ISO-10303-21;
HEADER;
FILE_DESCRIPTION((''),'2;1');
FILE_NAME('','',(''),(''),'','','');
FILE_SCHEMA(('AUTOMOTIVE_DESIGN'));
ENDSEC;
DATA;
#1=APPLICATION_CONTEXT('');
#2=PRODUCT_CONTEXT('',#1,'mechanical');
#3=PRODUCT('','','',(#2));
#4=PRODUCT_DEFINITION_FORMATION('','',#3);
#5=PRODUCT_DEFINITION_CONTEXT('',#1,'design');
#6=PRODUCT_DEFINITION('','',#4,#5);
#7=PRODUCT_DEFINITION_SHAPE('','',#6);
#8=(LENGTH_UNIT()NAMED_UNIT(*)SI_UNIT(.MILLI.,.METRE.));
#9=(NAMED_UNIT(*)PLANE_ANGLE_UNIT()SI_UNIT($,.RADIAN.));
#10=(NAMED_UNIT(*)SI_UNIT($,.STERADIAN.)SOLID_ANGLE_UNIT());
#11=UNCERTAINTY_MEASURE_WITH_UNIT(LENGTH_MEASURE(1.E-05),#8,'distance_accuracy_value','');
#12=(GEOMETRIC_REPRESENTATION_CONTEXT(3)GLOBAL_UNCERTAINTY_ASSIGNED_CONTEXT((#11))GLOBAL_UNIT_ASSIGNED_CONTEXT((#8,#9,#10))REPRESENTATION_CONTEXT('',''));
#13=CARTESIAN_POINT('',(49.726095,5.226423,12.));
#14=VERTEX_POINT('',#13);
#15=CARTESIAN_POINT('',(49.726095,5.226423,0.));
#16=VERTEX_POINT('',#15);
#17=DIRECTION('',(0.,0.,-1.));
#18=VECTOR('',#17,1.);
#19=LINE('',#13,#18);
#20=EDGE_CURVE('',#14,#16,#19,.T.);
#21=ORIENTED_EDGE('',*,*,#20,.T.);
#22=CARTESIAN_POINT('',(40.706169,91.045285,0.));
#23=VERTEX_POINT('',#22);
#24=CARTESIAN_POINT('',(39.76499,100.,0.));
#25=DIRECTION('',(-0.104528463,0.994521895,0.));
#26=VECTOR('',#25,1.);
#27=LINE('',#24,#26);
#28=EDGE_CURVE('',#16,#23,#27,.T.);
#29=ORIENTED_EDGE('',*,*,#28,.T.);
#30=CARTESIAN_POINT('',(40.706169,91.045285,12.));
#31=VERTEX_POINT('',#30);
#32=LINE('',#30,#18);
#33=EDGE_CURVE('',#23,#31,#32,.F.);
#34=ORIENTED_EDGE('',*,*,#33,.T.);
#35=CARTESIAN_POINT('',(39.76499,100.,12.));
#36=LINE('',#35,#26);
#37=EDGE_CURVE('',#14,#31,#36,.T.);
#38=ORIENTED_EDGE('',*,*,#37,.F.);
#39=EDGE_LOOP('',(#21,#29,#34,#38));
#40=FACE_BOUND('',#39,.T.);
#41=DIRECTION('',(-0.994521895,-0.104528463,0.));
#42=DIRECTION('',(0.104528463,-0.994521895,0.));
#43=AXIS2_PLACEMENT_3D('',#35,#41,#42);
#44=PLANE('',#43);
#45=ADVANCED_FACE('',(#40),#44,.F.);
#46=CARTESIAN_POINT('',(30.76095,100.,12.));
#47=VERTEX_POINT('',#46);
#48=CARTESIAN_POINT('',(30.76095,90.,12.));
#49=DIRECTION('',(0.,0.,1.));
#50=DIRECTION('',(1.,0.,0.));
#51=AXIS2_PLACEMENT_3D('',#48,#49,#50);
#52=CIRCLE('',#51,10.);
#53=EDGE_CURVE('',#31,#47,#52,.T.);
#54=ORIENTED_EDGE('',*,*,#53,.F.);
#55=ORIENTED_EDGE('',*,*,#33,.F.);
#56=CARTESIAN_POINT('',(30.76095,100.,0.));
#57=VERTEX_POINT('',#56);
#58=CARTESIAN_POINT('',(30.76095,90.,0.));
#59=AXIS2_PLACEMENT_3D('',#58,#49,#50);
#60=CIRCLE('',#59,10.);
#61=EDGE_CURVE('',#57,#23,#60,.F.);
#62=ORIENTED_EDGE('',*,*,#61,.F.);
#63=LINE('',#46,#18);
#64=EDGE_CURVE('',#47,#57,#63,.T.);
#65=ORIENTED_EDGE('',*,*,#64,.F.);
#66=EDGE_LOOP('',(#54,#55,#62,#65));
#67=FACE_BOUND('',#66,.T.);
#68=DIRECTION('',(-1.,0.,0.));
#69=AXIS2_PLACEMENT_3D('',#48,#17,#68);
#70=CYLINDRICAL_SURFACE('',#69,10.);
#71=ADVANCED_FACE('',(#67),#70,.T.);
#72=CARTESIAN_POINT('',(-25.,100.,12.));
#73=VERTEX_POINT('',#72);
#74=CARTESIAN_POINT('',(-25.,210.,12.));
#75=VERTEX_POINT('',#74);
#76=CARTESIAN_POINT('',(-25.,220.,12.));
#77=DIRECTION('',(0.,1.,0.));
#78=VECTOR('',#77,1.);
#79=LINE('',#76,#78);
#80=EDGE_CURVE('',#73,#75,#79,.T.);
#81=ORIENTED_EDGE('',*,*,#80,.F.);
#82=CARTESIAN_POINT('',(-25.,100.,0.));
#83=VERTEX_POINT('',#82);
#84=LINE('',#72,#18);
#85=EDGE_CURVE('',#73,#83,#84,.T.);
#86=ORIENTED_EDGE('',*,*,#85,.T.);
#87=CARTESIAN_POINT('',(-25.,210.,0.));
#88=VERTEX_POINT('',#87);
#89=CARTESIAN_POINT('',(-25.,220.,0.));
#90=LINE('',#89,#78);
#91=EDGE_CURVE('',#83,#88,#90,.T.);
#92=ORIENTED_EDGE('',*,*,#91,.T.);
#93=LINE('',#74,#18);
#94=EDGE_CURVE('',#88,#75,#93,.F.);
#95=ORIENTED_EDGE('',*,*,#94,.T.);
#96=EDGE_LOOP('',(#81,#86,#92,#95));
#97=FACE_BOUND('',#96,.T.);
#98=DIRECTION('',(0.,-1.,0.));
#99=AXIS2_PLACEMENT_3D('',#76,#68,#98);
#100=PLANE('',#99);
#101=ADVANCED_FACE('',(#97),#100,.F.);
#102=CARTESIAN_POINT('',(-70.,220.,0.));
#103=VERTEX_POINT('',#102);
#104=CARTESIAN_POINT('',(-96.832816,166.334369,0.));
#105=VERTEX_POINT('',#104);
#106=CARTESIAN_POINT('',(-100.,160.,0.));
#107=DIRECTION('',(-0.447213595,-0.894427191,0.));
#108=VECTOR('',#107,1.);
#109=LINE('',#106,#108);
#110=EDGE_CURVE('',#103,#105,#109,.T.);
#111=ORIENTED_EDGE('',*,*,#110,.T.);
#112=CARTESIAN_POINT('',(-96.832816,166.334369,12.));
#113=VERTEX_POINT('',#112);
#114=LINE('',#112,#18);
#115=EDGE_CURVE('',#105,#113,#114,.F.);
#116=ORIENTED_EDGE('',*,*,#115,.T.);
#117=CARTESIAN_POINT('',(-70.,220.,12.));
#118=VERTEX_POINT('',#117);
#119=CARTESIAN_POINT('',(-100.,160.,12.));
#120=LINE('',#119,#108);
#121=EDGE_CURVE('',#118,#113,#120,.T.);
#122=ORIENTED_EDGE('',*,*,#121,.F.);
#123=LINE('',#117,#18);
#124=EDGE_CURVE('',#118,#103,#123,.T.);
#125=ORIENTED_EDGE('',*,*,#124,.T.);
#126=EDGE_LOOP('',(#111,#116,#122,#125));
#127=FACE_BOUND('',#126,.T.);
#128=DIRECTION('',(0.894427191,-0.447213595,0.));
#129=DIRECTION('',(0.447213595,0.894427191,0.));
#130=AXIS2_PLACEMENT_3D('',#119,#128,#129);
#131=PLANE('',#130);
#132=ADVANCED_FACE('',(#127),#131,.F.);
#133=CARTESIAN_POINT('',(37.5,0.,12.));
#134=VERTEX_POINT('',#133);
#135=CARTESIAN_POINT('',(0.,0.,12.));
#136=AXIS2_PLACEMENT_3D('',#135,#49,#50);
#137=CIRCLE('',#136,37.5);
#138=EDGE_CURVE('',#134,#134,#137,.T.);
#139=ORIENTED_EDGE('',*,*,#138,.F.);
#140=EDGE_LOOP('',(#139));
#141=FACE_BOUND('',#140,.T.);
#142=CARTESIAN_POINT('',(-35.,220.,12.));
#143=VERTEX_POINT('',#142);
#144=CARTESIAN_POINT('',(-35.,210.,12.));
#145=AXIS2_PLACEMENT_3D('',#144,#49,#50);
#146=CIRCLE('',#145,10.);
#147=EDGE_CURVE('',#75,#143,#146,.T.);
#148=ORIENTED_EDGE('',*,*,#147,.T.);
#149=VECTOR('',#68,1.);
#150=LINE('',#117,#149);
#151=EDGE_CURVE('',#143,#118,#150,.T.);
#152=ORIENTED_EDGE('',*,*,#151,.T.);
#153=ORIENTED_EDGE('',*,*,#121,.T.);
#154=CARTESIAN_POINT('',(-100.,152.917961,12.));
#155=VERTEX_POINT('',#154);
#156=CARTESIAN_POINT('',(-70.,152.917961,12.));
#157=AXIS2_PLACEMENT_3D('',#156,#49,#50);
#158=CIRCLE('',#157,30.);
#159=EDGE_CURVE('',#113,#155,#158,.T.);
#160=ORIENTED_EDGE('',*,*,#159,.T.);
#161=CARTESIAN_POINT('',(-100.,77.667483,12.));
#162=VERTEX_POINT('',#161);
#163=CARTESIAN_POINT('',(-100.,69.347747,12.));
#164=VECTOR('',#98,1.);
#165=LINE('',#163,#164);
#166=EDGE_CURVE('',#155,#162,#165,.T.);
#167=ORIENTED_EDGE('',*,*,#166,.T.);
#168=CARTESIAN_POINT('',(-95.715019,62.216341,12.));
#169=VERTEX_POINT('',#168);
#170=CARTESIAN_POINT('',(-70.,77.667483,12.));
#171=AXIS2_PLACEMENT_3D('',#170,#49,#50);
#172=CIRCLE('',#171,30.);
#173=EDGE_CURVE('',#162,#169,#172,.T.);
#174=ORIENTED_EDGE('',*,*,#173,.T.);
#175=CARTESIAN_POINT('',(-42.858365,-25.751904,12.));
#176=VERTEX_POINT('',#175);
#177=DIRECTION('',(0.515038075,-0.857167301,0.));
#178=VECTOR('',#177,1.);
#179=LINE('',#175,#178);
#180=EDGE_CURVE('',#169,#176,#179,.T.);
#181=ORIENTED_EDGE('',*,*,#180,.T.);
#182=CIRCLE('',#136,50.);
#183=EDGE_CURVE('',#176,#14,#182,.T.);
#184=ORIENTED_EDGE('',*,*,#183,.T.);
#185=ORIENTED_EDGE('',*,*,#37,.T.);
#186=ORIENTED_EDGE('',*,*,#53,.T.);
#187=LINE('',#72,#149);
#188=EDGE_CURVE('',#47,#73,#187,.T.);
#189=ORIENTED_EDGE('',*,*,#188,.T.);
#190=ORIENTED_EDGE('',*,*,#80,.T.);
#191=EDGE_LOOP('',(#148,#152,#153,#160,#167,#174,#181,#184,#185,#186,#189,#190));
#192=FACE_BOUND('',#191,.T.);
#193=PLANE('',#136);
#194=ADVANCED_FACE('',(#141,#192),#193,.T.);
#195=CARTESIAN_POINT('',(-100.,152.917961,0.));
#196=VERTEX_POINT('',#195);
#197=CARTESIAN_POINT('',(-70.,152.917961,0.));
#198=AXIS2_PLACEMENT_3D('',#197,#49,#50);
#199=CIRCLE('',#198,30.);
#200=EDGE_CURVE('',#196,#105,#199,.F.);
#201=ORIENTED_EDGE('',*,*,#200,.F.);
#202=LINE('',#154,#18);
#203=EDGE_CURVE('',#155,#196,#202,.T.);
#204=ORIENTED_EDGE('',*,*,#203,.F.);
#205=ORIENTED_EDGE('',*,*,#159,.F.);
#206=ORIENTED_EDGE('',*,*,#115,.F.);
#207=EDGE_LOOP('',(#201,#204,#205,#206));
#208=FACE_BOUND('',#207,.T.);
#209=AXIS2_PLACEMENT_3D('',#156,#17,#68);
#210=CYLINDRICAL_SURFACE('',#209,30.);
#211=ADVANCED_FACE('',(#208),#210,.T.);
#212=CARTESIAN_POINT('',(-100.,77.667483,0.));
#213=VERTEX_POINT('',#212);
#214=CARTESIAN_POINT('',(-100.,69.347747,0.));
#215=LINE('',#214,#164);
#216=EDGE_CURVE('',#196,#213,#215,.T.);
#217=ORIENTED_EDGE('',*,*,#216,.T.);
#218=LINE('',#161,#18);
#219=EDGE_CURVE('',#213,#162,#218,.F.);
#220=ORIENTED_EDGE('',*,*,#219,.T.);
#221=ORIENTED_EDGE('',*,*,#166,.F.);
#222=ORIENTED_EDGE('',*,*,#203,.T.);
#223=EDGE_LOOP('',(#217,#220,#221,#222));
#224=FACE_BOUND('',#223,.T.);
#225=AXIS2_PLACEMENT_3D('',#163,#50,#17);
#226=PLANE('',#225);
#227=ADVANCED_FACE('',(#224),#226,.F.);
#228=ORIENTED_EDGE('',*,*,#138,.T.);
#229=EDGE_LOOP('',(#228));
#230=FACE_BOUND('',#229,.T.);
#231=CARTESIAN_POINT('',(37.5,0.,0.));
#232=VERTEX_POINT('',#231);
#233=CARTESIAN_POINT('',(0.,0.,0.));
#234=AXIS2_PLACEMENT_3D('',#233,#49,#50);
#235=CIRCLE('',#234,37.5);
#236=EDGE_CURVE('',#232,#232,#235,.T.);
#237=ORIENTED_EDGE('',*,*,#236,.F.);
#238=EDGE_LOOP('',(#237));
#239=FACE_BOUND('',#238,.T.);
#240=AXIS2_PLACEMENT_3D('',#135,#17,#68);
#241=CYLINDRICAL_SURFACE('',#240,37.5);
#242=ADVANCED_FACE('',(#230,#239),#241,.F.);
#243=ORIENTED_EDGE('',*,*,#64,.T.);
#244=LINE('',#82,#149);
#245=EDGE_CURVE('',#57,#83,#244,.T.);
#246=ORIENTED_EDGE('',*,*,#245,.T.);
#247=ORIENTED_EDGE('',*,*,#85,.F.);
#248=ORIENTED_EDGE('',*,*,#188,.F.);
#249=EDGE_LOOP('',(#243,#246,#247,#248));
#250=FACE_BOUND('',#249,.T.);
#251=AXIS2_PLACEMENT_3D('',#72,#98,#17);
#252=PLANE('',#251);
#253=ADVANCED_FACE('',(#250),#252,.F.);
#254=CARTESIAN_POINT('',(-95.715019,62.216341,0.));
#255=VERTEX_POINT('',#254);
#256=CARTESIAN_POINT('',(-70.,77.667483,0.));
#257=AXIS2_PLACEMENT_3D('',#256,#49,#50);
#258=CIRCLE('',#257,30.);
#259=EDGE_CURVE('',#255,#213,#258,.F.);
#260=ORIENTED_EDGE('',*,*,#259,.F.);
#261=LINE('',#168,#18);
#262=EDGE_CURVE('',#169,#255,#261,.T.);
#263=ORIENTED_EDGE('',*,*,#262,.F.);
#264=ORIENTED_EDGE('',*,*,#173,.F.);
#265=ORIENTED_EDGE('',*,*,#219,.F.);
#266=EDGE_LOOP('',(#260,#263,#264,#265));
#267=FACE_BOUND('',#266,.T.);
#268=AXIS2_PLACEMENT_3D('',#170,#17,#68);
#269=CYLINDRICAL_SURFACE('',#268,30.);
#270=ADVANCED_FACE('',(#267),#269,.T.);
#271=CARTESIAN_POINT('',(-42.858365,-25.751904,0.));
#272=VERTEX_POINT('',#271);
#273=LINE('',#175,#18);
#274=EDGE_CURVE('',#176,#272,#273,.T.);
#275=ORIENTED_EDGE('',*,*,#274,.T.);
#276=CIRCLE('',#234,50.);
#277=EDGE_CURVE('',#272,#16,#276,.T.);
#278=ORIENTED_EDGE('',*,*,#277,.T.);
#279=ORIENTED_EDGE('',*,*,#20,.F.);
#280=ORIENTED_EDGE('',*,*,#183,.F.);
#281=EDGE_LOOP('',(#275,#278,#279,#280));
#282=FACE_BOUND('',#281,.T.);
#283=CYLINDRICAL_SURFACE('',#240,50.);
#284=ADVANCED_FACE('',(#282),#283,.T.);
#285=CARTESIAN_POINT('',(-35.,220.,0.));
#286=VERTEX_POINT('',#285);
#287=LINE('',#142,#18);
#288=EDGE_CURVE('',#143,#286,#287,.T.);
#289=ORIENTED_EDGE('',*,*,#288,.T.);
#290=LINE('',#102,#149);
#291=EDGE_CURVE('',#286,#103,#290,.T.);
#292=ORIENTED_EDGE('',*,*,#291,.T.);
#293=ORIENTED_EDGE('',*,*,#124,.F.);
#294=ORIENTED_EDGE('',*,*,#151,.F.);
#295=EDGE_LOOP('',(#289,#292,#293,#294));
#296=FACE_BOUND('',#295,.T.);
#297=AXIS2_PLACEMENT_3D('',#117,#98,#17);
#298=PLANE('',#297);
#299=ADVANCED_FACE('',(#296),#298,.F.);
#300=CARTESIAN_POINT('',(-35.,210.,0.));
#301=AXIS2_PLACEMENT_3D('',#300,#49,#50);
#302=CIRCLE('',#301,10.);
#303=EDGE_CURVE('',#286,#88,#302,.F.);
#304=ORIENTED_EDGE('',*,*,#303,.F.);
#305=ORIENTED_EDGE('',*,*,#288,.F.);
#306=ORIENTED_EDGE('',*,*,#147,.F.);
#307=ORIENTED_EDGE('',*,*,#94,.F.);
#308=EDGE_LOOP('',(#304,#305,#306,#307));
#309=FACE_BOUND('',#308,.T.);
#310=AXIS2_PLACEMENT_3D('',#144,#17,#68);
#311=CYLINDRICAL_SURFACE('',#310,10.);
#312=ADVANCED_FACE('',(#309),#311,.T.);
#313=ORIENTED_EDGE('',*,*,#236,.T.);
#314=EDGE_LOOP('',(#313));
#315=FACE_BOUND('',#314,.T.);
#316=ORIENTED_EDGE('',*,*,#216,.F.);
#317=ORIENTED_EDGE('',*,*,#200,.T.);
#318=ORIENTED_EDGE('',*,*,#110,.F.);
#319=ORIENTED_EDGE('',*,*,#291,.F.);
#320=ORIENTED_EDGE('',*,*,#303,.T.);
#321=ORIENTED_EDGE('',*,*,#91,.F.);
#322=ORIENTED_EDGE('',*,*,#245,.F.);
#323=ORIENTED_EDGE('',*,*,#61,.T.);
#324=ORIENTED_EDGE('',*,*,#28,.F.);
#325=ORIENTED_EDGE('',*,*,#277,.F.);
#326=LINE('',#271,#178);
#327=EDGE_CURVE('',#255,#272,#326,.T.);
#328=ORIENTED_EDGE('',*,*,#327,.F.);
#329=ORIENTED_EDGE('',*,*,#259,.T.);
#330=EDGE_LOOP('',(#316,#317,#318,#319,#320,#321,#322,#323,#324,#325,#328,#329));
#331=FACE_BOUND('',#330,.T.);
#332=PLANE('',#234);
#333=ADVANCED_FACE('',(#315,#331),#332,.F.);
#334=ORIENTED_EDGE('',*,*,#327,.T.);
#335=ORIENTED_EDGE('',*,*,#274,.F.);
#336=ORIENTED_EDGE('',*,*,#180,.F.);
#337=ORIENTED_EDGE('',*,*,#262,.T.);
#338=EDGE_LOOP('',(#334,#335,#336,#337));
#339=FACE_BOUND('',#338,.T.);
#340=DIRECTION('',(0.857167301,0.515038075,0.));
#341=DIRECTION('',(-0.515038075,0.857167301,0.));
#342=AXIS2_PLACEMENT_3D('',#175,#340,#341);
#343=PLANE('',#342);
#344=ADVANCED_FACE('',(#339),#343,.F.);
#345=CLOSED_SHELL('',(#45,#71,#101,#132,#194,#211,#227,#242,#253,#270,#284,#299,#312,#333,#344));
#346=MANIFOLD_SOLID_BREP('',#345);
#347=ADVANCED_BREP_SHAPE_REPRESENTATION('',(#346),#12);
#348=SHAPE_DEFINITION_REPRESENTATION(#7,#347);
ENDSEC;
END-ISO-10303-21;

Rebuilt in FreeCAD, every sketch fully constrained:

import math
import FreeCAD as App
import Part
import Sketcher

V = App.Vector
Q = App.Units.Quantity


def edges_at(feature, points):
    """Names of the edges that pass closest to the given points."""
    edges = feature.Shape.Edges
    near = lambda p: min(range(len(edges)), key=lambda i: edges[i].distToShape(Part.Vertex(*p))[0])
    return sorted({f"Edge{near(p) + 1}" for p in points})

doc = App.newDocument("Part")
body = doc.addObject("PartDesign::Body", "Body")

sketch1 = body.newObject("Sketcher::SketchObject", "Sketch")
sketch1.AttachmentSupport = (doc.getObject("XY_Plane"), [""])
sketch1.MapMode = "FlatFace"
sketch1.addGeometry([
    Part.LineSegment(V(-100, 69, 0), V(-43, -26, 0)),
    Part.ArcOfCircle(Part.Circle(V(0, 0, 0), V(0, 0, 1), 50), math.radians(-149), math.radians(6)),
    Part.LineSegment(V(50, 5, 0), V(40, 100, 0)),
    Part.LineSegment(V(40, 100, 0), V(-25, 100, 0)),
    Part.LineSegment(V(-25, 100, 0), V(-25, 220, 0)),
    Part.LineSegment(V(-25, 220, 0), V(-70, 220, 0)),
    Part.LineSegment(V(-70, 220, 0), V(-100, 160, 0)),
    Part.LineSegment(V(-100, 160, 0), V(-100, 69, 0)),
    Part.Circle(V(0, 0, 0), V(0, 0, 1), 38),
], False)
sketch1.addConstraint([
    Sketcher.Constraint("Tangent", 0, 2, 1, 1),
    Sketcher.Constraint("Tangent", 1, 2, 2, 1),
    Sketcher.Constraint("Coincident", 2, 2, 3, 1),
    Sketcher.Constraint("Coincident", 3, 2, 4, 1),
    Sketcher.Constraint("Coincident", 4, 2, 5, 1),
    Sketcher.Constraint("Coincident", 5, 2, 6, 1),
    Sketcher.Constraint("Coincident", 6, 2, 7, 1),
    Sketcher.Constraint("Coincident", 7, 2, 0, 1),
    Sketcher.Constraint("Horizontal", 3),
    Sketcher.Constraint("Vertical", 4),
    Sketcher.Constraint("Horizontal", 5),
    Sketcher.Constraint("Vertical", 7),
    Sketcher.Constraint("Coincident", 1, 3, -1, 1),
    Sketcher.Constraint("Coincident", 8, 3, -1, 1),
    Sketcher.Constraint("Diameter", 8, 75.0),
    Sketcher.Constraint("Radius", 1, 50.0),
    Sketcher.Constraint("DistanceX", 5, 2, 5, 1, 45.0),
    Sketcher.Constraint("DistanceY", 4, 1, 4, 2, 120.0),
    Sketcher.Constraint("Angle", 0, Q("-59 deg")),
    Sketcher.Constraint("Angle", 2, Q("96 deg")),
    Sketcher.Constraint("DistanceY", -1, 1, 2, 2, 100.0),
    Sketcher.Constraint("DistanceX", 3, 2, -1, 1, 25.0),
    Sketcher.Constraint("DistanceX", 6, 2, -1, 1, 100.0),
    Sketcher.Constraint("DistanceY", -1, 1, 6, 2, 160.0),
])
pad1 = body.newObject("PartDesign::Pad", "Pad")
pad1.Profile = sketch1
pad1.Length = 12
doc.recompute()

fillet = body.newObject("PartDesign::Fillet", "Fillet")
fillet.Base = (pad1, edges_at(pad1, [(-25, 220, 6), (39.765, 100, 6)]))
fillet.Radius = 10
doc.recompute()

fillet2 = body.newObject("PartDesign::Fillet", "Fillet001")
fillet2.Base = (fillet, edges_at(fillet, [(-100, 69.348, 6), (-100, 160, 6)]))
fillet2.Radius = 30

doc.recompute()
